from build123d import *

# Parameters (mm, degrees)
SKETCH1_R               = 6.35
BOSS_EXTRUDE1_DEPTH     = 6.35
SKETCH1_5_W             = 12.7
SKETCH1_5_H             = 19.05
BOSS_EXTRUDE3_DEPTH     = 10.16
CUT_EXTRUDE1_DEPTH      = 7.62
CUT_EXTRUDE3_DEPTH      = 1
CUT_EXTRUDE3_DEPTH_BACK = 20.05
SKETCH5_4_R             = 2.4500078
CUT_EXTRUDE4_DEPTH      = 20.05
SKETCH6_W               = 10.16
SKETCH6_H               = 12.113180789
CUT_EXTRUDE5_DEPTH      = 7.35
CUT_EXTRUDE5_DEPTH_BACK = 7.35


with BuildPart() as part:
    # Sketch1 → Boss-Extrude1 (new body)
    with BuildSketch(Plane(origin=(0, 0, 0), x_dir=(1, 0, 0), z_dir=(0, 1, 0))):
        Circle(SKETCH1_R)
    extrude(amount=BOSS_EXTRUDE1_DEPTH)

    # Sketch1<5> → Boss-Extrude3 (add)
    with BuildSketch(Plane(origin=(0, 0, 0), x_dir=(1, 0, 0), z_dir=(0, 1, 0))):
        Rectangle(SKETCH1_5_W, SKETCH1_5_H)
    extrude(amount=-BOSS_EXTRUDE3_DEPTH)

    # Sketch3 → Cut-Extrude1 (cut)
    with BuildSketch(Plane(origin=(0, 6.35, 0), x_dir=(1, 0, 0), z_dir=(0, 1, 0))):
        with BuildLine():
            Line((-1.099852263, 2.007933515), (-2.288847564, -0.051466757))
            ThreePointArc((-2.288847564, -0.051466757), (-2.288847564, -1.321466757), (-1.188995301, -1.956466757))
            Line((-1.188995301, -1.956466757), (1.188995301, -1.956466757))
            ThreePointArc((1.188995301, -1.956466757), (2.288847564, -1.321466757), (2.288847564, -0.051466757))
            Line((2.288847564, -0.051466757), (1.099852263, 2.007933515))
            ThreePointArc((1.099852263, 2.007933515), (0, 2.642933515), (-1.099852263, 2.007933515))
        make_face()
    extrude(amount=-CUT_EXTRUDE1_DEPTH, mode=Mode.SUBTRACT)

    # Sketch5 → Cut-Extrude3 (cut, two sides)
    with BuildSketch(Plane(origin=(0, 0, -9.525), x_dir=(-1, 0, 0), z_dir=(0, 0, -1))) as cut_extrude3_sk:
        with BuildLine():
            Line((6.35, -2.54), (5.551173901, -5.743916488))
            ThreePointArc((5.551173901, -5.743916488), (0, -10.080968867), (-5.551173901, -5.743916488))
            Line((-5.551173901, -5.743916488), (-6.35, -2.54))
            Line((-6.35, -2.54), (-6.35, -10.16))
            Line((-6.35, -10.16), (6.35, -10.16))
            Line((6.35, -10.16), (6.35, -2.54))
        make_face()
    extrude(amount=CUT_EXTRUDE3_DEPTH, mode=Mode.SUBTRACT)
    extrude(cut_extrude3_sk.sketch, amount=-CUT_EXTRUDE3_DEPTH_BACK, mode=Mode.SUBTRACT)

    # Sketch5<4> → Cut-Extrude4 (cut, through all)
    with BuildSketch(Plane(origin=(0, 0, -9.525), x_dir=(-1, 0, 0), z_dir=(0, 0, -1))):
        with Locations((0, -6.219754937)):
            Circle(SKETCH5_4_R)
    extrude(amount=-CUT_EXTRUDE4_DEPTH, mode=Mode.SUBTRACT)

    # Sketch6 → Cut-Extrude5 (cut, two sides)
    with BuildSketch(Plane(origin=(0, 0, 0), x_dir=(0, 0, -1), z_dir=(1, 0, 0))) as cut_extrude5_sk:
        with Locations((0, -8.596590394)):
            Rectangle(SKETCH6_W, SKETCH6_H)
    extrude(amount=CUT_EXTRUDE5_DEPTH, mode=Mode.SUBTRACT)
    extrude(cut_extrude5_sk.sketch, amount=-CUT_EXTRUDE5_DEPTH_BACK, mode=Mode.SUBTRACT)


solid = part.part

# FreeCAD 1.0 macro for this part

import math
import FreeCAD as App
import Part
import Sketcher

V = App.Vector
Q = App.Units.Quantity


def add_polygon(sketch, points):
    """Adds a closed chain of lines whose ends are joined by coincident constraints."""
    first, n = sketch.GeometryCount, len(points)
    for a, b in zip(points, points[1:] + points[:1]):
        sketch.addGeometry(Part.LineSegment(App.Vector(*a, 0), App.Vector(*b, 0)), False)
    for i in range(n):
        sketch.addConstraint(Sketcher.Constraint("Coincident", first + i, 2, first + (i + 1) % n, 1))

doc = App.newDocument("Part")
body = doc.addObject("PartDesign::Body", "Body")

sketch1 = body.newObject("Sketcher::SketchObject", "Sketch")
sketch1.AttachmentSupport = (doc.getObject("XZ_Plane"), [""])
sketch1.MapMode = "FlatFace"
sketch1.addGeometry(Part.Circle(V(0, 0, 0), V(0, 0, 1), 6.35), False)
sketch1.addConstraint(Sketcher.Constraint("Coincident", 0, 3, -1, 1))
sketch1.addConstraint(Sketcher.Constraint("Diameter", 0, Q("0.5 in")))
pad1 = body.newObject("PartDesign::Pad", "Pad")
pad1.Profile = sketch1
pad1.Length = Q("0.25 in")
pad1.Reversed = True

sketch2 = body.newObject("Sketcher::SketchObject", "Sketch001")
sketch2.AttachmentSupport = (doc.getObject("XZ_Plane"), [""])
sketch2.MapMode = "FlatFace"
add_polygon(sketch2, [(-6.35, -9.525), (-6.35, 9.525), (6.35, 9.525), (6.35, -9.525)])
sketch2.addConstraint(Sketcher.Constraint("Vertical", 0))
sketch2.addConstraint(Sketcher.Constraint("Horizontal", 1))
sketch2.addConstraint(Sketcher.Constraint("Vertical", 2))
sketch2.addConstraint(Sketcher.Constraint("Horizontal", 3))
sketch2.addConstraint(Sketcher.Constraint("Symmetric", 0, 2, 2, 2, -1, 1))
sketch2.addConstraint(Sketcher.Constraint("DistanceX", 1, 1, 1, 2, Q("0.5 in")))
sketch2.addConstraint(Sketcher.Constraint("DistanceY", 0, 1, 0, 2, Q("0.75 in")))
pad2 = body.newObject("PartDesign::Pad", "Pad001")
pad2.Profile = sketch2
pad2.Length = Q("0.4 in")

sketch3 = body.newObject("Sketcher::SketchObject", "Sketch002")
sketch3.AttachmentSupport = (doc.getObject("XZ_Plane"), [""])
sketch3.MapMode = "FlatFace"
sketch3.AttachmentOffset = App.Placement(V(0, 0, -0.25 * 25.4), App.Rotation())
sketch3.addGeometry(Part.LineSegment(V(-1.099852, -2.007934, 0), V(-2.288848, 0.051467, 0)), False)
sketch3.addGeometry(Part.ArcOfCircle(Part.Circle(V(-1.188995, 0.686467, 0), V(0, 0, 1), 1.27), math.radians(90), math.radians(210)), False)
sketch3.addGeometry(Part.LineSegment(V(-1.188995, 1.956467, 0), V(1.188995, 1.956467, 0)), False)
sketch3.addGeometry(Part.ArcOfCircle(Part.Circle(V(1.188995, 0.686467, 0), V(0, 0, 1), 1.27), math.radians(-30), math.radians(90)), False)
sketch3.addGeometry(Part.LineSegment(V(2.288848, 0.051467, 0), V(1.099852, -2.007934, 0)), False)
sketch3.addGeometry(Part.ArcOfCircle(Part.Circle(V(0, -1.372934, 0), V(0, 0, 1), 1.27), math.radians(-150), math.radians(-30)), False)
sketch3.addConstraint(Sketcher.Constraint("Tangent", 0, 2, 1, 2))
sketch3.addConstraint(Sketcher.Constraint("Tangent", 1, 1, 2, 1))
sketch3.addConstraint(Sketcher.Constraint("Tangent", 2, 2, 3, 2))
sketch3.addConstraint(Sketcher.Constraint("Tangent", 3, 1, 4, 1))
sketch3.addConstraint(Sketcher.Constraint("Tangent", 4, 2, 5, 2))
sketch3.addConstraint(Sketcher.Constraint("Tangent", 5, 1, 0, 1))
sketch3.addConstraint(Sketcher.Constraint("Horizontal", 2))
sketch3.addConstraint(Sketcher.Constraint("Equal", 1, 3))
sketch3.addConstraint(Sketcher.Constraint("Equal", 3, 5))
sketch3.addConstraint(Sketcher.Constraint("Symmetric", 0, 2, 3, 1, -2))
sketch3.addConstraint(Sketcher.Constraint("Radius", 1, Q("0.05 in")))
sketch3.addConstraint(Sketcher.Constraint("Angle", 0, Q("120 deg")))
sketch3.addConstraint(Sketcher.Constraint("DistanceX", 2, 1, 2, 2, Q("2.377991 mm")))
sketch3.addConstraint(Sketcher.Constraint("DistanceY", -1, 1, 1, 3, Q("0.686467 mm")))
pocket1 = body.newObject("PartDesign::Pocket", "Pocket")
pocket1.Profile = sketch3
pocket1.Length = Q("0.3 in")
pocket1.Reversed = True

sketch4 = body.newObject("Sketcher::SketchObject", "Sketch003")
sketch4.AttachmentSupport = (doc.getObject("XY_Plane"), [""])
sketch4.MapMode = "FlatFace"
sketch4.AttachmentOffset = App.Placement(V(0, 0, -0.375 * 25.4), App.Rotation())
sketch4.addGeometry(Part.LineSegment(V(-6.35, -2.54, 0), V(-5.551174, -5.743916, 0)), False)
sketch4.addGeometry(Part.ArcOfCircle(Part.Circle(V(0, -4.359853, 0), V(0, 0, 1), 5.721115), math.radians(-166), math.radians(-14)), False)
sketch4.addGeometry(Part.LineSegment(V(5.551174, -5.743916, 0), V(6.35, -2.54, 0)), False)
sketch4.addGeometry(Part.LineSegment(V(6.35, -2.54, 0), V(6.35, -10.16, 0)), False)
sketch4.addGeometry(Part.LineSegment(V(6.35, -10.16, 0), V(-6.35, -10.16, 0)), False)
sketch4.addGeometry(Part.LineSegment(V(-6.35, -10.16, 0), V(-6.35, -2.54, 0)), False)
sketch4.addConstraint(Sketcher.Constraint("Tangent", 0, 2, 1, 1))
sketch4.addConstraint(Sketcher.Constraint("Tangent", 1, 2, 2, 1))
sketch4.addConstraint(Sketcher.Constraint("Coincident", 2, 2, 3, 1))
sketch4.addConstraint(Sketcher.Constraint("Coincident", 3, 2, 4, 1))
sketch4.addConstraint(Sketcher.Constraint("Coincident", 4, 2, 5, 1))
sketch4.addConstraint(Sketcher.Constraint("Coincident", 5, 2, 0, 1))
sketch4.addConstraint(Sketcher.Constraint("Vertical", 3))
sketch4.addConstraint(Sketcher.Constraint("Horizontal", 4))
sketch4.addConstraint(Sketcher.Constraint("Vertical", 5))
sketch4.addConstraint(Sketcher.Constraint("Symmetric", 0, 2, 1, 2, -2))
sketch4.addConstraint(Sketcher.Constraint("Horizontal", 2, 2, 5, 2))
sketch4.addConstraint(Sketcher.Constraint("DistanceX", 4, 2, 4, 1, Q("0.5 in")))
sketch4.addConstraint(Sketcher.Constraint("DistanceY", 3, 2, 3, 1, Q("0.3 in")))
sketch4.addConstraint(Sketcher.Constraint("Angle", 0, Q("-76 deg")))
sketch4.addConstraint(Sketcher.Constraint("DistanceY", 2, 2, -1, 1, Q("0.1 in")))
sketch4.addConstraint(Sketcher.Constraint("Distance", 0, Q("0.13 in")))
pocket2 = body.newObject("PartDesign::Pocket", "Pocket001")
pocket2.Profile = sketch4
pocket2.Type = "ThroughAll"
pocket2.Midplane = True

sketch5 = body.newObject("Sketcher::SketchObject", "Sketch004")
sketch5.AttachmentSupport = (doc.getObject("XY_Plane"), [""])
sketch5.MapMode = "FlatFace"
sketch5.AttachmentOffset = App.Placement(V(0, 0, -0.375 * 25.4), App.Rotation())
sketch5.addGeometry(Part.Circle(V(0, -6.219755, 0), V(0, 0, 1), 2.450008), False)
sketch5.addConstraint(Sketcher.Constraint("PointOnObject", 0, 3, -2))
sketch5.addConstraint(Sketcher.Constraint("Diameter", 0, Q("4.900016 mm")))
sketch5.addConstraint(Sketcher.Constraint("DistanceY", 0, 3, -1, 1, Q("6.219755 mm")))
pocket3 = body.newObject("PartDesign::Pocket", "Pocket002")
pocket3.Profile = sketch5
pocket3.Type = "ThroughAll"
pocket3.Reversed = True

sketch6 = body.newObject("Sketcher::SketchObject", "Sketch005")
sketch6.AttachmentSupport = (doc.getObject("YZ_Plane"), [""])
sketch6.MapMode = "FlatFace"
add_polygon(sketch6, [(-2.54, 5.08), (-14.653181, 5.08), (-14.653181, -5.08), (-2.54, -5.08)])
sketch6.addConstraint(Sketcher.Constraint("Horizontal", 0))
sketch6.addConstraint(Sketcher.Constraint("Vertical", 1))
sketch6.addConstraint(Sketcher.Constraint("Horizontal", 2))
sketch6.addConstraint(Sketcher.Constraint("Vertical", 3))
sketch6.addConstraint(Sketcher.Constraint("DistanceY", 1, 2, 1, 1, Q("0.4 in")))
sketch6.addConstraint(Sketcher.Constraint("DistanceY", -1, 1, 0, 2, Q("0.2 in")))
sketch6.addConstraint(Sketcher.Constraint("DistanceX", 2, 2, -1, 1, Q("0.1 in")))
sketch6.addConstraint(Sketcher.Constraint("DistanceX", 0, 2, 0, 1, Q("12.113181 mm")))
pocket4 = body.newObject("PartDesign::Pocket", "Pocket003")
pocket4.Profile = sketch6
pocket4.Type = "ThroughAll"
pocket4.Midplane = True

doc.recompute()
